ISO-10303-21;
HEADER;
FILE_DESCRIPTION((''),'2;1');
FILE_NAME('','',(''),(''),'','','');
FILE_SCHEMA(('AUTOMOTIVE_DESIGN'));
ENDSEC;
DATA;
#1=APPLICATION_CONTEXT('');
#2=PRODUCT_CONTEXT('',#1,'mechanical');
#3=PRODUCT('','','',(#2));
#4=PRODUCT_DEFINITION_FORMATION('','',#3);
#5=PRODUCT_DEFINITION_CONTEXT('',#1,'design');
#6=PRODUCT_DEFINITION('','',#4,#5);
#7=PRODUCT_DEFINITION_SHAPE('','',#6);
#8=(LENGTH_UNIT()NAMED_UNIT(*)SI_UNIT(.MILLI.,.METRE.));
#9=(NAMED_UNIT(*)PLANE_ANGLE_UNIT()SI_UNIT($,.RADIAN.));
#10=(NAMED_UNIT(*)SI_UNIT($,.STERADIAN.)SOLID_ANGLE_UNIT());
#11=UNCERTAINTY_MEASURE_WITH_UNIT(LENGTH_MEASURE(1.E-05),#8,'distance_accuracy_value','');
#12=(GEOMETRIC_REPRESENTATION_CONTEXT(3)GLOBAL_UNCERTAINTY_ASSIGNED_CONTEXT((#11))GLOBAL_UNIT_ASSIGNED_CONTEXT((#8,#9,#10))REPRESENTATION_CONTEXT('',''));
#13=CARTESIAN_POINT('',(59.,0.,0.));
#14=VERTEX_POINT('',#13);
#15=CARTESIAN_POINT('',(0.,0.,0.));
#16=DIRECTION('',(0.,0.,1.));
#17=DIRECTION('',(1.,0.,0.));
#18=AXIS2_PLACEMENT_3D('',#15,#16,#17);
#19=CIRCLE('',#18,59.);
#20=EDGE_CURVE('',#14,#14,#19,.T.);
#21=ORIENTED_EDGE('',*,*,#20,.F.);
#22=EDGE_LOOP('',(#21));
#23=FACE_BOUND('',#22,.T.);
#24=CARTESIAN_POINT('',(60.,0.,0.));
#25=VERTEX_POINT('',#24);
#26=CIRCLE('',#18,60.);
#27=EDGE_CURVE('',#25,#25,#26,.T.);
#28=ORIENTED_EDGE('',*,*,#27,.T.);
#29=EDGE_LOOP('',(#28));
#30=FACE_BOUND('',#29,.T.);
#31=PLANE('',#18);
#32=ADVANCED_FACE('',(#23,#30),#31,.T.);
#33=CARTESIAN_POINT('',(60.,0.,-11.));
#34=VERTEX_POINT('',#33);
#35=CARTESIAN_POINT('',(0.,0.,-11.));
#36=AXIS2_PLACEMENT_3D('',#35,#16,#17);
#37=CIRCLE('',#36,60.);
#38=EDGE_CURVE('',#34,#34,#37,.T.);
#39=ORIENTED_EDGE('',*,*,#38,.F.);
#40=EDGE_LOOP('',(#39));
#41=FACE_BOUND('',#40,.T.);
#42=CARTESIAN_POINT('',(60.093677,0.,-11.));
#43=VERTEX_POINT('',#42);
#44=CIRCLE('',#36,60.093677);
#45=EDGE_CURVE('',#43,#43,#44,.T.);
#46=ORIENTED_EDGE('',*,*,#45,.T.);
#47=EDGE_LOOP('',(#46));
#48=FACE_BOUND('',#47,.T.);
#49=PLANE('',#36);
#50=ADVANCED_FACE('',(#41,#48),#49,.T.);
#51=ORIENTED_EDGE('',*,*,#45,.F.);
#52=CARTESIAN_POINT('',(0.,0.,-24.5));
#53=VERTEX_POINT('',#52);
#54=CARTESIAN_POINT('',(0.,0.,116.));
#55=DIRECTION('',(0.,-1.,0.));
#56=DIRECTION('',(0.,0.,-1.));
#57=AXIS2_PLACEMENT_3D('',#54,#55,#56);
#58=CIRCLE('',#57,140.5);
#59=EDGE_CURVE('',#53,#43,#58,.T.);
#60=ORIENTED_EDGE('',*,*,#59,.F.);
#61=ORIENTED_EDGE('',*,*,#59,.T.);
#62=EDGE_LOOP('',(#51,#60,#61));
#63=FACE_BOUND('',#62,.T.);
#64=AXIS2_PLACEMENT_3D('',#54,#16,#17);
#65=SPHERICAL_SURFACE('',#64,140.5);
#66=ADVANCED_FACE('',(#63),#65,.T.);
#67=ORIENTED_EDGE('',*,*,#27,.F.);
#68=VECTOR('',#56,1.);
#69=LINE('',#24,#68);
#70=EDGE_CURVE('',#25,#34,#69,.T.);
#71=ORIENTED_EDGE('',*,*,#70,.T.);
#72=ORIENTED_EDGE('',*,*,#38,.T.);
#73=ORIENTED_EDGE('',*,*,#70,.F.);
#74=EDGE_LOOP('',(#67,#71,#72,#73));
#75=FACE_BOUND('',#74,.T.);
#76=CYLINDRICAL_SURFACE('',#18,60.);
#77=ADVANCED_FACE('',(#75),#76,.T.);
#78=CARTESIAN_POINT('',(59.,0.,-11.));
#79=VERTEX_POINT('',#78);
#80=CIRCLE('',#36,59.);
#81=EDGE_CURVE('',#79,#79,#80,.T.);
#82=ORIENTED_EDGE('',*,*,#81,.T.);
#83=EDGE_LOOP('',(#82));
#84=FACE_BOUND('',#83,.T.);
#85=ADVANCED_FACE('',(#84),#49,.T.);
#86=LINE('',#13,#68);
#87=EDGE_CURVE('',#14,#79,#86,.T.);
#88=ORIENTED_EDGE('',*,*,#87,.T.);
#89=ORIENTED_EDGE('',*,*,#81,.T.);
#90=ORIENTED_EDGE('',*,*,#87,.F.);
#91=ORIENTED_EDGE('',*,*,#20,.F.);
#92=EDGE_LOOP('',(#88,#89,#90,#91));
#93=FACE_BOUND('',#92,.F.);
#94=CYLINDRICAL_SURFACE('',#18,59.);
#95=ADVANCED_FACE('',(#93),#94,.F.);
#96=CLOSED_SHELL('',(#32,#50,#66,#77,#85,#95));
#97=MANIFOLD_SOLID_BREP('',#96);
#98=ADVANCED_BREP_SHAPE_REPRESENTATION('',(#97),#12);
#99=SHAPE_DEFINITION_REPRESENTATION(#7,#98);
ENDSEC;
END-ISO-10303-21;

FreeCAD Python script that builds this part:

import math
import FreeCAD as App
import Part
import Sketcher
from FreeCAD import Vector

doc = App.newDocument("Part")
body = doc.addObject("PartDesign::Body", "Body")

sketch1 = body.newObject("Sketcher::SketchObject", "Sketch")
sketch1.AttachmentSupport = (doc.getObject("XY_Plane"), [""])
sketch1.MapMode = "FlatFace"
sketch1.AttachmentOffset = App.Placement(Vector(0, 0, -11), App.Rotation())
sketch1.addGeometry(Part.Circle(Vector(0, 0, 0), Vector(0, 0, 1), 200), False)
sketch1.addConstraint([
    Sketcher.Constraint("Coincident", 0, 3, -1, 1),
    Sketcher.Constraint("Diameter", 0, 400.0),
])
pad1 = body.newObject("PartDesign::Pad", "Pad")
pad1.Profile = sketch1
pad1.Length = 395
body2 = doc.addObject("PartDesign::Body", "Body001")

sketch2 = body2.newObject("Sketcher::SketchObject", "Sketch001")
sketch2.AttachmentSupport = (doc.getObject("XZ_Plane001"), [""])
sketch2.MapMode = "FlatFace"
sketch2.addGeometry([
    Part.ArcOfCircle(Part.Circle(Vector(0, 116, 0), Vector(0, 0, 1), 140.5), math.radians(-90), math.radians(90)),
    Part.LineSegment(Vector(0, 256.5, 0), Vector(0, -24.5, 0)),
], False)
sketch2.addConstraint([
    Sketcher.Constraint("Coincident", 0, 1, 1, 2),
    Sketcher.Constraint("Coincident", 1, 1, 0, 2),
    Sketcher.Constraint("Vertical", 1),
    Sketcher.Constraint("PointOnObject", 0, 3, -2),
    Sketcher.Constraint("PointOnObject", 0, 1, -2),
    Sketcher.Constraint("Radius", 0, 140.5),
    Sketcher.Constraint("DistanceY", -1, 1, 0, 3, 116.0),
])
revolution = body2.newObject("PartDesign::Revolution", "Revolution")
revolution.Profile = sketch2
revolution.ReferenceAxis = (sketch2, ["V_Axis"])
revolution.Angle = 360
doc.recompute()

boolean = body2.newObject("PartDesign::Boolean", "Boolean")
boolean.Type = "Cut"
boolean.addObjects([body])
body3 = doc.addObject("PartDesign::Body", "Body002")

sketch3 = body3.newObject("Sketcher::SketchObject", "Sketch002")
sketch3.AttachmentSupport = (doc.getObject("XY_Plane002"), [""])
sketch3.MapMode = "FlatFace"
sketch3.addGeometry(Part.Circle(Vector(0, 0, 0), Vector(0, 0, 1), 59), False)
sketch3.addConstraint([
    Sketcher.Constraint("Coincident", 0, 3, -1, 1),
    Sketcher.Constraint("Diameter", 0, 118.0),
])
pad2 = body3.newObject("PartDesign::Pad", "Pad001")
pad2.Profile = sketch3
pad2.Length = 11
pad2.Reversed = True
body4 = doc.addObject("PartDesign::Body", "Body003")

sketch4 = body4.newObject("Sketcher::SketchObject", "Sketch003")
sketch4.AttachmentSupport = (doc.getObject("XY_Plane003"), [""])
sketch4.MapMode = "FlatFace"
sketch4.addGeometry(Part.Circle(Vector(0, 0, 0), Vector(0, 0, 1), 60), False)
sketch4.addConstraint([
    Sketcher.Constraint("Coincident", 0, 3, -1, 1),
    Sketcher.Constraint("Diameter", 0, 120.0),
])
pad3 = body4.newObject("PartDesign::Pad", "Pad002")
pad3.Profile = sketch4
pad3.Length = 11
pad3.Reversed = True
doc.recompute()

boolean2 = body4.newObject("PartDesign::Boolean", "Boolean001")
boolean2.Type = "Cut"
boolean2.addObjects([body3])
doc.recompute()

boolean3 = body4.newObject("PartDesign::Boolean", "Boolean002")
boolean3.Type = "Fuse"
boolean3.addObjects([body2])

doc.recompute()
